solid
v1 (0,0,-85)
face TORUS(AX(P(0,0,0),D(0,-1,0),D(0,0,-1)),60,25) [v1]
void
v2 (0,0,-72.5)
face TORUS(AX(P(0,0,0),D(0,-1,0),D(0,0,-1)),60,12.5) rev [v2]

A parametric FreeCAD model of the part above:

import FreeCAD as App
import Part
import Sketcher

doc = App.newDocument("Part")
body = doc.addObject("PartDesign::Body", "Body")

# Sketch on XY plane
sketch1 = doc.addObject("Sketcher::SketchObject", "Sketch")
body.addObject(sketch1)
sketch1.AttachmentSupport = (doc.XY_Plane, [""])
sketch1.MapMode = "FlatFace"
sketch1.addGeometry([
    Part.Circle(App.Vector(-60, 0, 0), App.Vector(0, 0, 1), 25),
    Part.Circle(App.Vector(-60, 0, 0), App.Vector(0, 0, 1), 12),
], False)
sketch1.addConstraint([
    Sketcher.Constraint("Coincident", 1, 3, 0, 3),
    Sketcher.Constraint("PointOnObject", 0, 3, -1),
    Sketcher.Constraint("Diameter", 0, 50.0),
    Sketcher.Constraint("Diameter", 1, 25.0),
    Sketcher.Constraint("DistanceX", 0, 3, -1, 1, 60.0),
])
revolution = doc.addObject("PartDesign::Revolution", "Revolution")
body.addObject(revolution)
revolution.Profile = sketch1
revolution.ReferenceAxis = (sketch1, ["V_Axis"])
revolution.Angle = 360

doc.recompute()
